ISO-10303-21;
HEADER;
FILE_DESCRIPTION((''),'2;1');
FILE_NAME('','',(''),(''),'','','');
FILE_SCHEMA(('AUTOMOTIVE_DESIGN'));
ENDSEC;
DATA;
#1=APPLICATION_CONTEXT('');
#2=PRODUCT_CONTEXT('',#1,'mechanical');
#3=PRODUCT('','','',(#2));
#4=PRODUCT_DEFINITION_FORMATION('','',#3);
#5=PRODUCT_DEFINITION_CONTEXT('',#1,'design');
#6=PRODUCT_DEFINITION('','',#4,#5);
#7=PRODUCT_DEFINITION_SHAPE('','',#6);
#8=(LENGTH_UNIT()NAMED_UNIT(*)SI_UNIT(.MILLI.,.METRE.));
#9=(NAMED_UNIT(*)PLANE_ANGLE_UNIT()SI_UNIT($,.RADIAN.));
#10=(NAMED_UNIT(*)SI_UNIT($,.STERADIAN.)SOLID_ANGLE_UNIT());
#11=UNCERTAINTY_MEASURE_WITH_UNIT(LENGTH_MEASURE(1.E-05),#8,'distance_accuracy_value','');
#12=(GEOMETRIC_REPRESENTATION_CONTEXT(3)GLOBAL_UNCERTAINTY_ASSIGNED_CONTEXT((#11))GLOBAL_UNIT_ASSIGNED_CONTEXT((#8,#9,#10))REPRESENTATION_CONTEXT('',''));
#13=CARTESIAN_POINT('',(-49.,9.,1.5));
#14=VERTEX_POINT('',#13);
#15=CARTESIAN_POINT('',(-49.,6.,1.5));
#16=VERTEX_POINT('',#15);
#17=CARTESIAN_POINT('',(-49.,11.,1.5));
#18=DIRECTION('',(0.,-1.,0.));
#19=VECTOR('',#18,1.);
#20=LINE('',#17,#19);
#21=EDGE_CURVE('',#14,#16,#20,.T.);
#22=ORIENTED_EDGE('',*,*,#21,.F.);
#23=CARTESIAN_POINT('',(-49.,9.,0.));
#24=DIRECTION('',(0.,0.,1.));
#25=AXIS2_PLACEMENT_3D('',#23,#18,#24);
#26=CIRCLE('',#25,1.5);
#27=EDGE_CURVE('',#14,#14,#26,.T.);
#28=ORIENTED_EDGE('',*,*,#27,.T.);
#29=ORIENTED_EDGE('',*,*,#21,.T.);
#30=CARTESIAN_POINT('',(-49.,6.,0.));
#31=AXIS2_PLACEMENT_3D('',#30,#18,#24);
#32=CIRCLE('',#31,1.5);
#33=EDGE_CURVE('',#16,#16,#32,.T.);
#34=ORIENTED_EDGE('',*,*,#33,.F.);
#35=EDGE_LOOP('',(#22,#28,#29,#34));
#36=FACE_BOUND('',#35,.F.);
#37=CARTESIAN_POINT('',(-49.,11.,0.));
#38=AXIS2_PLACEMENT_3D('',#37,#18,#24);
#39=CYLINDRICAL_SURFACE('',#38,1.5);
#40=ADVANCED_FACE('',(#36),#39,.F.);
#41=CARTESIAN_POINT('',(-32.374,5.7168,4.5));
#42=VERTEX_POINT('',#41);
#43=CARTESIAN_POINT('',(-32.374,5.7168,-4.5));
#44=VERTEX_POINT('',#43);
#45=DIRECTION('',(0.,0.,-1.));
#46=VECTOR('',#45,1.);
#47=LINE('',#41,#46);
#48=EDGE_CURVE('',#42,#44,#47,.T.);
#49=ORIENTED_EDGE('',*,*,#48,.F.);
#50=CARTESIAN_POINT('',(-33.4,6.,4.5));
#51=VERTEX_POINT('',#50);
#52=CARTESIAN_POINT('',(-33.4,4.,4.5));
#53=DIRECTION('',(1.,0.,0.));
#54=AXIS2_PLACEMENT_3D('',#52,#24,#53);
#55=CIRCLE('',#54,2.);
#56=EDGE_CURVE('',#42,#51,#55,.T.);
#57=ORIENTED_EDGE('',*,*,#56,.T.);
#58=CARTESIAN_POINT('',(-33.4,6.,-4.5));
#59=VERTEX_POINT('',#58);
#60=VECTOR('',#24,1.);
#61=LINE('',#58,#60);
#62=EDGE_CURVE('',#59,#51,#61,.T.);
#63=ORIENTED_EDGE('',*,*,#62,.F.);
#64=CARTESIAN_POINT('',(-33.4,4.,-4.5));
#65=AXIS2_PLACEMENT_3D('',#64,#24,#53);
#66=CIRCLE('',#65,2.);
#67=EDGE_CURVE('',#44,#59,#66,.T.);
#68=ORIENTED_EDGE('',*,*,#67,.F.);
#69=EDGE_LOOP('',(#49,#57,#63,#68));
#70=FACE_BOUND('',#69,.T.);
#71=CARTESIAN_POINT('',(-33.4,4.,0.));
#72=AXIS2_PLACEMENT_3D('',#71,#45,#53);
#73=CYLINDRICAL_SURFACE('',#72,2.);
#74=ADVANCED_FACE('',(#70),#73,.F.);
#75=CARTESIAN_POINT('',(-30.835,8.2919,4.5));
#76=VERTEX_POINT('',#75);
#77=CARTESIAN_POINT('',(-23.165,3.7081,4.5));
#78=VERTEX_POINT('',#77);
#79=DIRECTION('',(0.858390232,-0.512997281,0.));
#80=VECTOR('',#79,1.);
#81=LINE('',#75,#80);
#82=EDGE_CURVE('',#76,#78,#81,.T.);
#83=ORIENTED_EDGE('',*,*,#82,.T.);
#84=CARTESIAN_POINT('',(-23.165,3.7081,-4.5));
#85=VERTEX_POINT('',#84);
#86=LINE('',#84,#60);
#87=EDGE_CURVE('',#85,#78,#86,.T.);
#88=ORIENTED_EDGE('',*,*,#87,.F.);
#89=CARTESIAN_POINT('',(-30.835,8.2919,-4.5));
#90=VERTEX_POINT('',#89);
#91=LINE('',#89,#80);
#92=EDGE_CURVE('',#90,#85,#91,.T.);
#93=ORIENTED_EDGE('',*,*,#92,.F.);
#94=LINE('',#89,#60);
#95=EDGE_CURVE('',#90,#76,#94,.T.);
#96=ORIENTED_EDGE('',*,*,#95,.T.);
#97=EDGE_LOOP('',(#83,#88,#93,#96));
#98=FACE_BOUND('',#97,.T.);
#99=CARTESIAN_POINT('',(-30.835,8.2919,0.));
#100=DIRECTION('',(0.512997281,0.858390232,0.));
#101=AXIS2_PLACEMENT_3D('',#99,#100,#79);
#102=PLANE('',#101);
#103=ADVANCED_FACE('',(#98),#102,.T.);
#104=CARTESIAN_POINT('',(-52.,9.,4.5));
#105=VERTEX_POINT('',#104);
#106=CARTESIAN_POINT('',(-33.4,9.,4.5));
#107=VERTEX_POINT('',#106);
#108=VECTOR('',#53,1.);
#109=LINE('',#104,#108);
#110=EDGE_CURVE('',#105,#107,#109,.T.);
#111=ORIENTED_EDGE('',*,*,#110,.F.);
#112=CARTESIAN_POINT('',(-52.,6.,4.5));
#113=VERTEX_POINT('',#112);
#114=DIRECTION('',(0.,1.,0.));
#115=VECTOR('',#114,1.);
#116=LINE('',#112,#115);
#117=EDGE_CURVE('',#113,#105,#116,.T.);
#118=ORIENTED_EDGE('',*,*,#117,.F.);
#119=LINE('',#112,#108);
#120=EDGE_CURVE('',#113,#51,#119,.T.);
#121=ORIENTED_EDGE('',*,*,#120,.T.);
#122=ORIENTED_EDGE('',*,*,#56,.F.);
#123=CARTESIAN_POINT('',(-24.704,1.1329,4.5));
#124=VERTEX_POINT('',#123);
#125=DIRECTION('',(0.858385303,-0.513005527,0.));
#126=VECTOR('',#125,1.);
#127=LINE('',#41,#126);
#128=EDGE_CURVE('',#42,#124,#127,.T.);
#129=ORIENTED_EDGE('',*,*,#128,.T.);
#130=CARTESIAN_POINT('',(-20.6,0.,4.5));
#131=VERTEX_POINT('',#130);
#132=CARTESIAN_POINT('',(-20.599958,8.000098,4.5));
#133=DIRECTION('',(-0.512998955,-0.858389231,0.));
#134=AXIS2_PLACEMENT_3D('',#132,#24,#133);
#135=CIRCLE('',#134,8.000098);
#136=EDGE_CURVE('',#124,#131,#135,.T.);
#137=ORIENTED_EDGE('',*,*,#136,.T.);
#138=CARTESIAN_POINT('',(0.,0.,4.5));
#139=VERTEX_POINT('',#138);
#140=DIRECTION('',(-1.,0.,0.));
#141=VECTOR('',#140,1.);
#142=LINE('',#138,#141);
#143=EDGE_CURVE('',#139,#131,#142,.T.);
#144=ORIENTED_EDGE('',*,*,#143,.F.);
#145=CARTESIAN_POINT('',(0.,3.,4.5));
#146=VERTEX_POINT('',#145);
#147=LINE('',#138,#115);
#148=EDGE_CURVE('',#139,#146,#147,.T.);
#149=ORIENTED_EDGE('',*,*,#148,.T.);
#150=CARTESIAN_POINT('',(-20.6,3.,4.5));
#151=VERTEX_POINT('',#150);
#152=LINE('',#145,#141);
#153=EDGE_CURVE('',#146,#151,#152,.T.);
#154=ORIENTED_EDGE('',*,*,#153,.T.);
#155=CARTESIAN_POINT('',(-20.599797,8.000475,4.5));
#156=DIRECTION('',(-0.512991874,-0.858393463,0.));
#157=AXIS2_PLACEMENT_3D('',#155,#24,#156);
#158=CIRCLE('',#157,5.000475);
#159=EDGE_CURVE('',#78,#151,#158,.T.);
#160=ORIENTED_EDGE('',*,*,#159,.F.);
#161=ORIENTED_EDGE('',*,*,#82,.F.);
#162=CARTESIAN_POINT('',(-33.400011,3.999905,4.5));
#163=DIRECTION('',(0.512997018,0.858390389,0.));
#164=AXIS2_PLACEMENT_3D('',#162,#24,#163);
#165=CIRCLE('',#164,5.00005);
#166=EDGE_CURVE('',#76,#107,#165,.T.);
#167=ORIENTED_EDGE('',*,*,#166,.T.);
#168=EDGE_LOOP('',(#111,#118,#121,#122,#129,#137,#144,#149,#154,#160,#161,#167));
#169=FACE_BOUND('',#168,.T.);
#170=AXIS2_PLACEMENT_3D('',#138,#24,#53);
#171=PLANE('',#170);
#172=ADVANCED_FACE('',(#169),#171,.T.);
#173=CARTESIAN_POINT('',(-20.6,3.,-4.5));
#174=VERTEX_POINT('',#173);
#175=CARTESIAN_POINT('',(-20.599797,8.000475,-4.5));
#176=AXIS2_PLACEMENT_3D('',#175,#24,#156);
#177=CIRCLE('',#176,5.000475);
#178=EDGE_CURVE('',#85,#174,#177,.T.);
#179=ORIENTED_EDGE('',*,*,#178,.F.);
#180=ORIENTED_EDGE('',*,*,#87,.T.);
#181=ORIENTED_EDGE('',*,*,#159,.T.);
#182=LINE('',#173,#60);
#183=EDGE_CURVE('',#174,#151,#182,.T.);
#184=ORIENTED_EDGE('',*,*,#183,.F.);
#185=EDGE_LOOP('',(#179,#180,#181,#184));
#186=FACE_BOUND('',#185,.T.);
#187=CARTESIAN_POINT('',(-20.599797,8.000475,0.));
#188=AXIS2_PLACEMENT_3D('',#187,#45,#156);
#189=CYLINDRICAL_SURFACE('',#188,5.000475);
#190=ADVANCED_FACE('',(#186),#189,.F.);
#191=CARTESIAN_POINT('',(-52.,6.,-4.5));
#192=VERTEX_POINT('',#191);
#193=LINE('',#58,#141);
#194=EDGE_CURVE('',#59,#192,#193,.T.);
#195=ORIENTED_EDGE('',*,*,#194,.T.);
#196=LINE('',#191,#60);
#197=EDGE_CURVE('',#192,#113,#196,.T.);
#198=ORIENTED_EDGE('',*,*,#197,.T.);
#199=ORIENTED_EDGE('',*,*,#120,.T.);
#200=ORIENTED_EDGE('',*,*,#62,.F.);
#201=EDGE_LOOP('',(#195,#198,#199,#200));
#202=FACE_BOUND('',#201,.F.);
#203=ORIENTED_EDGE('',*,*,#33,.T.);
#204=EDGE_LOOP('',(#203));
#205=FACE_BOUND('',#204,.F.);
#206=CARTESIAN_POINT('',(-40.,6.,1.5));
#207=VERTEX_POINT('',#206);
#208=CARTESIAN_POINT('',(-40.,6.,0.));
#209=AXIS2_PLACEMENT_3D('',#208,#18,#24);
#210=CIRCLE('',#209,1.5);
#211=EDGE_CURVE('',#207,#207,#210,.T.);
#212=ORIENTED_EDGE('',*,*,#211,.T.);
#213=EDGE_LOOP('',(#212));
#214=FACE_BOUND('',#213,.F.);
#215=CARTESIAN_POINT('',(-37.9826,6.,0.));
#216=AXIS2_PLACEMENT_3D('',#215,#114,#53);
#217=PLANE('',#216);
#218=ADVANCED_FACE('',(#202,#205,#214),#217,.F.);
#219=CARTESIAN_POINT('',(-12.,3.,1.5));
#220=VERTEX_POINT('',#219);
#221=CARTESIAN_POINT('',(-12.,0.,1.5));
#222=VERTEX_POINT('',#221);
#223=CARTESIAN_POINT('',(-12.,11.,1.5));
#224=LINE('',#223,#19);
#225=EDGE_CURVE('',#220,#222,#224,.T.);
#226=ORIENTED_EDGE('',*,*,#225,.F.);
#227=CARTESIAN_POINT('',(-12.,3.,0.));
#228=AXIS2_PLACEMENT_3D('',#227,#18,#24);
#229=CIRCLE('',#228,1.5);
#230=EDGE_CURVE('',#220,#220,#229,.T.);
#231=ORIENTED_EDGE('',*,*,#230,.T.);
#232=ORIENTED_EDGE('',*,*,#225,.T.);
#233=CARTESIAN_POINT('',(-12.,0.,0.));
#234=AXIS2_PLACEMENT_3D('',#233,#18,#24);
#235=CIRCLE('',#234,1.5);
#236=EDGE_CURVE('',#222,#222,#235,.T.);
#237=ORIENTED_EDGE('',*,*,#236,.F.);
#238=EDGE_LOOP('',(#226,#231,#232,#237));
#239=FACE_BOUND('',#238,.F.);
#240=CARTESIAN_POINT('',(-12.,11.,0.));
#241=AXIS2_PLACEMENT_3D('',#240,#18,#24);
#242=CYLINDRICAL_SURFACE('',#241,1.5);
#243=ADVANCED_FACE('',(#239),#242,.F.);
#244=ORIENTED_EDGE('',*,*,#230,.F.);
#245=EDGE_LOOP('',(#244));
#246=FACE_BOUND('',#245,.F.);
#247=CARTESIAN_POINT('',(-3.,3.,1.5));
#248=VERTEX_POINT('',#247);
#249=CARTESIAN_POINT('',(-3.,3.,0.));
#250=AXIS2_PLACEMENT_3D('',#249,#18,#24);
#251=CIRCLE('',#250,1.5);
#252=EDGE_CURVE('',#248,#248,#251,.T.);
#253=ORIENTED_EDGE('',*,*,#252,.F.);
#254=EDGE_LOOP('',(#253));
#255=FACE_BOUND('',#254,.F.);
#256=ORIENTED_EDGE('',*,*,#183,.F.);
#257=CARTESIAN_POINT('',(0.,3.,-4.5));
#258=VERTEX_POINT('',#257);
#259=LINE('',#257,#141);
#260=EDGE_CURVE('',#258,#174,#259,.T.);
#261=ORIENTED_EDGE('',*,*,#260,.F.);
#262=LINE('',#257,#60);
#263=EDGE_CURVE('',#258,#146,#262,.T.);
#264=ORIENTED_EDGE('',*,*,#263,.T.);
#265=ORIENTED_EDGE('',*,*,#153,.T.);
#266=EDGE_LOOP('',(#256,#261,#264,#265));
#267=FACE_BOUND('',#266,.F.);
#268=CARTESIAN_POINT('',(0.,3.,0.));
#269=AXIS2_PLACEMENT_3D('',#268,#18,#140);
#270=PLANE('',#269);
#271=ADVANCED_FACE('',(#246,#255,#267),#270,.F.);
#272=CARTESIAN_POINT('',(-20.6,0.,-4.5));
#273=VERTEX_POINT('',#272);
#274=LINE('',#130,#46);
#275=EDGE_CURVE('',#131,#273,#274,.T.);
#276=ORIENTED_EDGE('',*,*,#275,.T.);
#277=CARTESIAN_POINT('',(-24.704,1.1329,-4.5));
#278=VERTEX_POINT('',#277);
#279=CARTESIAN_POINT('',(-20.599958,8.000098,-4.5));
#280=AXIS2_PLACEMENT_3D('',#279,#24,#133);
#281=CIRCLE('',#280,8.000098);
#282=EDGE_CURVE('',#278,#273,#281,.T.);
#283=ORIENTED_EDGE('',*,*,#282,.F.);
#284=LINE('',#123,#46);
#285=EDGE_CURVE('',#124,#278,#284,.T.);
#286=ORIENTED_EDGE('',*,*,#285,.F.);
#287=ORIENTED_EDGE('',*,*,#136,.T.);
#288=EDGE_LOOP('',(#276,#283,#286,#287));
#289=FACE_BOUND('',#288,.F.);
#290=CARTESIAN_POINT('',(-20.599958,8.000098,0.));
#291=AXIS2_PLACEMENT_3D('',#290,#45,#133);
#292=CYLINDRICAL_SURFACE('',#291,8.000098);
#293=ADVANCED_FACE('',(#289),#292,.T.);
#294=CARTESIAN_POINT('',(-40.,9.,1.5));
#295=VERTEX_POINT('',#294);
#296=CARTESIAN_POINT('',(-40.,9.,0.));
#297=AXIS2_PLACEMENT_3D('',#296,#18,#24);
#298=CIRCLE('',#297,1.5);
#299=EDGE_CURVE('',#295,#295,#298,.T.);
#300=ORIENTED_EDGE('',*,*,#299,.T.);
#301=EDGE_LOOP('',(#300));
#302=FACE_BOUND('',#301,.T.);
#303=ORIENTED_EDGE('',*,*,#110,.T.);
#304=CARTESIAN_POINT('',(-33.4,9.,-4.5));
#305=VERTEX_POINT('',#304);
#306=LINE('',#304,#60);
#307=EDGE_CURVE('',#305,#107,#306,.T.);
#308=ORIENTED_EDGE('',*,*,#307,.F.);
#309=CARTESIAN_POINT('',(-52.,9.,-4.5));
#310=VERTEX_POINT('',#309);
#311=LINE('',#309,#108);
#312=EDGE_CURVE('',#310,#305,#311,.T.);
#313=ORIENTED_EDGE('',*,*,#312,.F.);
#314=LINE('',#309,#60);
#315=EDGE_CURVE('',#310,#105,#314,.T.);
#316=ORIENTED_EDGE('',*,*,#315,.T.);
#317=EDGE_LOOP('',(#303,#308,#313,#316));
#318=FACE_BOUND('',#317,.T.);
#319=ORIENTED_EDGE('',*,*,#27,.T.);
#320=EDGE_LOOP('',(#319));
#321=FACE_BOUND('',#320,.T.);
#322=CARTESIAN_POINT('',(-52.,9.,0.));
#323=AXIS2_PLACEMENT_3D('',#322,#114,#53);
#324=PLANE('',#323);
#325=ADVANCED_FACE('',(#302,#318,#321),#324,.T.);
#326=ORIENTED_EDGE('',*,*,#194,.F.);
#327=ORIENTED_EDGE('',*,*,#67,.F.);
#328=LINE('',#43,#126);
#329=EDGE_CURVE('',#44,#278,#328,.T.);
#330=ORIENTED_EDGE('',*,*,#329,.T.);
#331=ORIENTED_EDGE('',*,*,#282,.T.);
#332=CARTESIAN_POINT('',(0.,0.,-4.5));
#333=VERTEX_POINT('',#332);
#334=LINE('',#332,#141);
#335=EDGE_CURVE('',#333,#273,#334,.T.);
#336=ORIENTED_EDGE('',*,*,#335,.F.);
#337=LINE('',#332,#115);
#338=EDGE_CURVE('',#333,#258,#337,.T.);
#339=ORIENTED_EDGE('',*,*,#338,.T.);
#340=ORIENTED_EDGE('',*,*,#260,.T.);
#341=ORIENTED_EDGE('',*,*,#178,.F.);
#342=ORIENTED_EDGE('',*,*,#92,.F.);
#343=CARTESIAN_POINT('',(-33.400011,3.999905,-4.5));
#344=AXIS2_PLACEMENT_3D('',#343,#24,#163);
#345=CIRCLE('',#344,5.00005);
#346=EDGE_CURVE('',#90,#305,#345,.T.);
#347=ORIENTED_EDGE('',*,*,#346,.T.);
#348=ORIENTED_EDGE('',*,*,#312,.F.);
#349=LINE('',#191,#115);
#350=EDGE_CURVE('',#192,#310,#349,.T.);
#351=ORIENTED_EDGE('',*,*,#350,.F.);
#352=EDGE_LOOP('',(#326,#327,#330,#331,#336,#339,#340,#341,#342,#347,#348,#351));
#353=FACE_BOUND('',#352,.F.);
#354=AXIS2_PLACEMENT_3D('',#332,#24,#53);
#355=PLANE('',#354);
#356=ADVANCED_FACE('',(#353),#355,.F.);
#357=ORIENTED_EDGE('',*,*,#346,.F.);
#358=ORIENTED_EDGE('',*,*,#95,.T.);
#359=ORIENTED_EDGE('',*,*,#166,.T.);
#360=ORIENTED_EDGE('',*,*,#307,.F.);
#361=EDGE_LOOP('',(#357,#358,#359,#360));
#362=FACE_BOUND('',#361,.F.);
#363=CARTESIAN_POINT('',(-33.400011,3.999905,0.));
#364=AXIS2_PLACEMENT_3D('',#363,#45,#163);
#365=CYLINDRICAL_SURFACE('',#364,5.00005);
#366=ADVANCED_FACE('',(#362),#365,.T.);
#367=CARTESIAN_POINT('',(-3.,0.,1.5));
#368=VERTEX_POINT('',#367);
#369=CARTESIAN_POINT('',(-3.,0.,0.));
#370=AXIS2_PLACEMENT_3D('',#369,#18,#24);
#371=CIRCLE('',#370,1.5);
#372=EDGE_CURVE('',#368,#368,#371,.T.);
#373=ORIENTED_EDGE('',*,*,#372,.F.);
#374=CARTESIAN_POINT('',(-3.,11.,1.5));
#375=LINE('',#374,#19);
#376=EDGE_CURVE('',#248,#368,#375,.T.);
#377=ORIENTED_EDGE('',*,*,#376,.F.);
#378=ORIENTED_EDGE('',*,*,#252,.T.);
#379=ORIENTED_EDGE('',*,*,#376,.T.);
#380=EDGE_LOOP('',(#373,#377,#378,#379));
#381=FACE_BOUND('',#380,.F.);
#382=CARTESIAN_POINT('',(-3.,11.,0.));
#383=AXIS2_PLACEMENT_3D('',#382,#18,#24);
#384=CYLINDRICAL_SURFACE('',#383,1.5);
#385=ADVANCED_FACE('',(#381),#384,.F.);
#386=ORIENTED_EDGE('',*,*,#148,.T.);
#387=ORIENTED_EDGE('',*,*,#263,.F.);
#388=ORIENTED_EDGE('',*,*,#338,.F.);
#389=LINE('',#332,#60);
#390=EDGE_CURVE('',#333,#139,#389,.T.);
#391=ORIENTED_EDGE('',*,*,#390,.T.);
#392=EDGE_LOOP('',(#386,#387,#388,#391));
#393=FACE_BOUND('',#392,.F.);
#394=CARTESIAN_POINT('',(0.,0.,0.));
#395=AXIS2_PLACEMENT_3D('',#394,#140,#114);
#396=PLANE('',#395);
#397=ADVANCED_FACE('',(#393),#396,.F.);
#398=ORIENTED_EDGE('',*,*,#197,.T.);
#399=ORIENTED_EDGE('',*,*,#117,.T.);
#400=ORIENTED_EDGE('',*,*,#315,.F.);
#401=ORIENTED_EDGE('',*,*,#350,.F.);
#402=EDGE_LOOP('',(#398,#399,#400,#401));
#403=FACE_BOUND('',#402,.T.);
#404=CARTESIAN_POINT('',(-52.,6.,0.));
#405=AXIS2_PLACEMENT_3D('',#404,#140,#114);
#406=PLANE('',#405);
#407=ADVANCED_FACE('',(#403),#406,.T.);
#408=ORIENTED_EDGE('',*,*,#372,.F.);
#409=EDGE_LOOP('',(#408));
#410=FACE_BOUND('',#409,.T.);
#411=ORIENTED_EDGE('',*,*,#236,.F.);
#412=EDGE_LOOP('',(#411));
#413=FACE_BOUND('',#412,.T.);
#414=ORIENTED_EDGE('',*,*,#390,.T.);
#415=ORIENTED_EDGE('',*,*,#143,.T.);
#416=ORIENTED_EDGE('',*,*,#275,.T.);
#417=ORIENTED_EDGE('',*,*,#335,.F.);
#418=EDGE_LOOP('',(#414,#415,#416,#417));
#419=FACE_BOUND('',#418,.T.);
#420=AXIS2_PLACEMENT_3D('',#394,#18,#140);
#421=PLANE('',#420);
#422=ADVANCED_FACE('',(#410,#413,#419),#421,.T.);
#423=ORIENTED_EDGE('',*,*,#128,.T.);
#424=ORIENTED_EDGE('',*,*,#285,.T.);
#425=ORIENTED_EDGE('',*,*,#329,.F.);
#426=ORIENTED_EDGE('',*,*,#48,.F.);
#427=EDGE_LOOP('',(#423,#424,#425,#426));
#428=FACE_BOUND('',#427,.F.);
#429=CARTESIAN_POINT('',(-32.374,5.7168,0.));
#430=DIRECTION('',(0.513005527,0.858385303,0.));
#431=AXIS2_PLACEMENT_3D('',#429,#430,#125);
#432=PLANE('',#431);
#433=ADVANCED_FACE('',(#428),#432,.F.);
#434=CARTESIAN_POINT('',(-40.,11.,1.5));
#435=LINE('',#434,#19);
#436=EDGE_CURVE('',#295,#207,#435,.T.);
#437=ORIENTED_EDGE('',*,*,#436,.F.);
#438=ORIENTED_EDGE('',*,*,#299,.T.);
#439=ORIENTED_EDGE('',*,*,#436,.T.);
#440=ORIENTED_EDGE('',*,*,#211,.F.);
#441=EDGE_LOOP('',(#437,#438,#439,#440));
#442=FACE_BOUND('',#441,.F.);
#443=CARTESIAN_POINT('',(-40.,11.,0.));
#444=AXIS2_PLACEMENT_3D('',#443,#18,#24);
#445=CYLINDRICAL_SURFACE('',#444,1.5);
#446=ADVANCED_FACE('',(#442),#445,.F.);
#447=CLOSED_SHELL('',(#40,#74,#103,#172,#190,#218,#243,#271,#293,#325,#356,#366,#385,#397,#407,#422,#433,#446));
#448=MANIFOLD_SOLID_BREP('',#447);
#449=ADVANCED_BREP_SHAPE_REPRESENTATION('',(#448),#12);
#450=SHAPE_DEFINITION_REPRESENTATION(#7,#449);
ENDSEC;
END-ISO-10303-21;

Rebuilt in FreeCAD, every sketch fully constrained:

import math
import FreeCAD as App
import Part
import Sketcher
from FreeCAD import Vector
Q = App.Units.Quantity

doc = App.newDocument("Part")
params = doc.addObject("Spreadsheet::Sheet", "Params")
for row, (alias, value) in enumerate([
    ("sketch1_radius", "5 mm"),
    ("sketch1_radius2", "2 mm"),
    ("sketch1_width", "20.6 mm"),
    ("sketch1_width2", "18.6 mm"),
    ("pad1_length", "9 mm"),
    ("sketch2_diameter", "3 mm"),
    ("hole_diameter", "3 mm"),
], start=1):
    params.set(f"A{row}", alias)
    params.set(f"B{row}", "=" + value)
    params.setAlias(f"B{row}", alias)

body = doc.addObject("PartDesign::Body", "Body")

sketch1 = body.newObject("Sketcher::SketchObject", "Sketch")
sketch1.AttachmentSupport = (doc.getObject("XY_Plane"), [""])
sketch1.MapMode = "FlatFace"
sketch1.addGeometry([
    Part.LineSegment(Vector(-20.6, 0, 0), Vector(0, 0, 0)),
    Part.LineSegment(Vector(0, 0, 0), Vector(0, 3, 0)),
    Part.LineSegment(Vector(0, 3, 0), Vector(-20.6, 3, 0)),
    Part.ArcOfCircle(Part.Circle(Vector(-20.6, 8, 0), Vector(0, 0, 1), 5), math.radians(-121), math.radians(-90)),
    Part.LineSegment(Vector(-23.2, 3.7, 0), Vector(-30.8, 8.3, 0)),
    Part.ArcOfCircle(Part.Circle(Vector(-33.4, 4, 0), Vector(0, 0, 1), 5), math.radians(59), math.radians(90)),
    Part.LineSegment(Vector(-33.4, 9, 0), Vector(-52, 9, 0)),
    Part.LineSegment(Vector(-52, 9, 0), Vector(-52, 6, 0)),
    Part.LineSegment(Vector(-52, 6, 0), Vector(-33.4, 6, 0)),
    Part.ArcOfCircle(Part.Circle(Vector(-33.4, 4, 0), Vector(0, 0, 1), 2), math.radians(59), math.radians(90)),
    Part.LineSegment(Vector(-32.4, 5.7, 0), Vector(-24.7, 1.1, 0)),
    Part.ArcOfCircle(Part.Circle(Vector(-20.6, 8, 0), Vector(0, 0, 1), 8), math.radians(-121), math.radians(-90)),
], False)
sketch1.addConstraint([
    Sketcher.Constraint("Coincident", 0, 2, 1, 1),
    Sketcher.Constraint("Coincident", 1, 2, 2, 1),
    Sketcher.Constraint("Tangent", 2, 2, 3, 2),
    Sketcher.Constraint("Tangent", 3, 1, 4, 1),
    Sketcher.Constraint("Tangent", 4, 2, 5, 1),
    Sketcher.Constraint("Tangent", 5, 2, 6, 1),
    Sketcher.Constraint("Coincident", 6, 2, 7, 1),
    Sketcher.Constraint("Coincident", 7, 2, 8, 1),
    Sketcher.Constraint("Tangent", 8, 2, 9, 2),
    Sketcher.Constraint("Tangent", 9, 1, 10, 1),
    Sketcher.Constraint("Tangent", 10, 2, 11, 1),
    Sketcher.Constraint("Tangent", 11, 2, 0, 1),
    Sketcher.Constraint("Horizontal", 0),
    Sketcher.Constraint("Vertical", 1),
    Sketcher.Constraint("Horizontal", 2),
    Sketcher.Constraint("Horizontal", 6),
    Sketcher.Constraint("Vertical", 7),
    Sketcher.Constraint("Horizontal", 8),
    Sketcher.Constraint("Coincident", 0, 2, -1, 1),
    Sketcher.Constraint("Coincident", 9, 3, 5, 3),
    Sketcher.Constraint("Coincident", 11, 3, 3, 3),
    Sketcher.Constraint("Equal", 3, 5),
    Sketcher.Constraint("Parallel", 4, 10),
    Sketcher.Constraint("Radius", 3, Q("5 mm")),
    Sketcher.Constraint("Radius", 9, Q("2 mm")),
    Sketcher.Constraint("DistanceX", 0, 1, 0, 2, Q("20.6 mm")),
    Sketcher.Constraint("DistanceX", 6, 2, 6, 1, Q("18.6 mm")),
    Sketcher.Constraint("DistanceY", -1, 1, 5, 3, Q("4 mm")),
    Sketcher.Constraint("DistanceX", 5, 3, 3, 3, Q("12.8 mm")),
])
sketch1.setExpression("Constraints[23]", "Params.sketch1_radius")
sketch1.setExpression("Constraints[24]", "Params.sketch1_radius2")
sketch1.setExpression("Constraints[25]", "Params.sketch1_width")
sketch1.setExpression("Constraints[26]", "Params.sketch1_width2")
pad1 = body.newObject("PartDesign::Pad", "Pad")
pad1.Profile = sketch1
pad1.setExpression("Length", "Params.pad1_length")
pad1.Midplane = True

sketch2 = body.newObject("Sketcher::SketchObject", "Sketch001")
sketch2.AttachmentSupport = (doc.getObject("XZ_Plane"), [""])
sketch2.MapMode = "FlatFace"
sketch2.AttachmentOffset = App.Placement(Vector(0, 0, -11), App.Rotation())
sketch2.addGeometry([
    Part.Circle(Vector(-12, 0, 0), Vector(0, 0, 1), 1.5),
    Part.Circle(Vector(-3, 0, 0), Vector(0, 0, 1), 1.5),
    Part.Circle(Vector(-40, 0, 0), Vector(0, 0, 1), 1.5),
    Part.Circle(Vector(-49, 0, 0), Vector(0, 0, 1), 1.5),
], False)
sketch2.addConstraint([
    Sketcher.Constraint("Equal", 0, 1),
    Sketcher.Constraint("Equal", 1, 2),
    Sketcher.Constraint("Equal", 2, 3),
    Sketcher.Constraint("PointOnObject", 0, 3, -1),
    Sketcher.Constraint("PointOnObject", 1, 3, -1),
    Sketcher.Constraint("PointOnObject", 2, 3, -1),
    Sketcher.Constraint("PointOnObject", 3, 3, -1),
    Sketcher.Constraint("Diameter", 0, Q("3 mm")),
    Sketcher.Constraint("DistanceX", 0, 3, -1, 1, Q("12 mm")),
    Sketcher.Constraint("DistanceX", 1, 3, -1, 1, Q("3 mm")),
    Sketcher.Constraint("DistanceX", 2, 3, -1, 1, Q("40 mm")),
    Sketcher.Constraint("DistanceX", 3, 3, -1, 1, Q("49 mm")),
])
sketch2.setExpression("Constraints[7]", "Params.sketch2_diameter")
doc.recompute()
hole = body.newObject("PartDesign::Hole", "Hole")
hole.Profile = sketch2
hole.ThreadType = "None"
hole.setExpression("Diameter", "Params.hole_diameter")
hole.DepthType = "ThroughAll"
hole.Reversed = True

doc.recompute()
